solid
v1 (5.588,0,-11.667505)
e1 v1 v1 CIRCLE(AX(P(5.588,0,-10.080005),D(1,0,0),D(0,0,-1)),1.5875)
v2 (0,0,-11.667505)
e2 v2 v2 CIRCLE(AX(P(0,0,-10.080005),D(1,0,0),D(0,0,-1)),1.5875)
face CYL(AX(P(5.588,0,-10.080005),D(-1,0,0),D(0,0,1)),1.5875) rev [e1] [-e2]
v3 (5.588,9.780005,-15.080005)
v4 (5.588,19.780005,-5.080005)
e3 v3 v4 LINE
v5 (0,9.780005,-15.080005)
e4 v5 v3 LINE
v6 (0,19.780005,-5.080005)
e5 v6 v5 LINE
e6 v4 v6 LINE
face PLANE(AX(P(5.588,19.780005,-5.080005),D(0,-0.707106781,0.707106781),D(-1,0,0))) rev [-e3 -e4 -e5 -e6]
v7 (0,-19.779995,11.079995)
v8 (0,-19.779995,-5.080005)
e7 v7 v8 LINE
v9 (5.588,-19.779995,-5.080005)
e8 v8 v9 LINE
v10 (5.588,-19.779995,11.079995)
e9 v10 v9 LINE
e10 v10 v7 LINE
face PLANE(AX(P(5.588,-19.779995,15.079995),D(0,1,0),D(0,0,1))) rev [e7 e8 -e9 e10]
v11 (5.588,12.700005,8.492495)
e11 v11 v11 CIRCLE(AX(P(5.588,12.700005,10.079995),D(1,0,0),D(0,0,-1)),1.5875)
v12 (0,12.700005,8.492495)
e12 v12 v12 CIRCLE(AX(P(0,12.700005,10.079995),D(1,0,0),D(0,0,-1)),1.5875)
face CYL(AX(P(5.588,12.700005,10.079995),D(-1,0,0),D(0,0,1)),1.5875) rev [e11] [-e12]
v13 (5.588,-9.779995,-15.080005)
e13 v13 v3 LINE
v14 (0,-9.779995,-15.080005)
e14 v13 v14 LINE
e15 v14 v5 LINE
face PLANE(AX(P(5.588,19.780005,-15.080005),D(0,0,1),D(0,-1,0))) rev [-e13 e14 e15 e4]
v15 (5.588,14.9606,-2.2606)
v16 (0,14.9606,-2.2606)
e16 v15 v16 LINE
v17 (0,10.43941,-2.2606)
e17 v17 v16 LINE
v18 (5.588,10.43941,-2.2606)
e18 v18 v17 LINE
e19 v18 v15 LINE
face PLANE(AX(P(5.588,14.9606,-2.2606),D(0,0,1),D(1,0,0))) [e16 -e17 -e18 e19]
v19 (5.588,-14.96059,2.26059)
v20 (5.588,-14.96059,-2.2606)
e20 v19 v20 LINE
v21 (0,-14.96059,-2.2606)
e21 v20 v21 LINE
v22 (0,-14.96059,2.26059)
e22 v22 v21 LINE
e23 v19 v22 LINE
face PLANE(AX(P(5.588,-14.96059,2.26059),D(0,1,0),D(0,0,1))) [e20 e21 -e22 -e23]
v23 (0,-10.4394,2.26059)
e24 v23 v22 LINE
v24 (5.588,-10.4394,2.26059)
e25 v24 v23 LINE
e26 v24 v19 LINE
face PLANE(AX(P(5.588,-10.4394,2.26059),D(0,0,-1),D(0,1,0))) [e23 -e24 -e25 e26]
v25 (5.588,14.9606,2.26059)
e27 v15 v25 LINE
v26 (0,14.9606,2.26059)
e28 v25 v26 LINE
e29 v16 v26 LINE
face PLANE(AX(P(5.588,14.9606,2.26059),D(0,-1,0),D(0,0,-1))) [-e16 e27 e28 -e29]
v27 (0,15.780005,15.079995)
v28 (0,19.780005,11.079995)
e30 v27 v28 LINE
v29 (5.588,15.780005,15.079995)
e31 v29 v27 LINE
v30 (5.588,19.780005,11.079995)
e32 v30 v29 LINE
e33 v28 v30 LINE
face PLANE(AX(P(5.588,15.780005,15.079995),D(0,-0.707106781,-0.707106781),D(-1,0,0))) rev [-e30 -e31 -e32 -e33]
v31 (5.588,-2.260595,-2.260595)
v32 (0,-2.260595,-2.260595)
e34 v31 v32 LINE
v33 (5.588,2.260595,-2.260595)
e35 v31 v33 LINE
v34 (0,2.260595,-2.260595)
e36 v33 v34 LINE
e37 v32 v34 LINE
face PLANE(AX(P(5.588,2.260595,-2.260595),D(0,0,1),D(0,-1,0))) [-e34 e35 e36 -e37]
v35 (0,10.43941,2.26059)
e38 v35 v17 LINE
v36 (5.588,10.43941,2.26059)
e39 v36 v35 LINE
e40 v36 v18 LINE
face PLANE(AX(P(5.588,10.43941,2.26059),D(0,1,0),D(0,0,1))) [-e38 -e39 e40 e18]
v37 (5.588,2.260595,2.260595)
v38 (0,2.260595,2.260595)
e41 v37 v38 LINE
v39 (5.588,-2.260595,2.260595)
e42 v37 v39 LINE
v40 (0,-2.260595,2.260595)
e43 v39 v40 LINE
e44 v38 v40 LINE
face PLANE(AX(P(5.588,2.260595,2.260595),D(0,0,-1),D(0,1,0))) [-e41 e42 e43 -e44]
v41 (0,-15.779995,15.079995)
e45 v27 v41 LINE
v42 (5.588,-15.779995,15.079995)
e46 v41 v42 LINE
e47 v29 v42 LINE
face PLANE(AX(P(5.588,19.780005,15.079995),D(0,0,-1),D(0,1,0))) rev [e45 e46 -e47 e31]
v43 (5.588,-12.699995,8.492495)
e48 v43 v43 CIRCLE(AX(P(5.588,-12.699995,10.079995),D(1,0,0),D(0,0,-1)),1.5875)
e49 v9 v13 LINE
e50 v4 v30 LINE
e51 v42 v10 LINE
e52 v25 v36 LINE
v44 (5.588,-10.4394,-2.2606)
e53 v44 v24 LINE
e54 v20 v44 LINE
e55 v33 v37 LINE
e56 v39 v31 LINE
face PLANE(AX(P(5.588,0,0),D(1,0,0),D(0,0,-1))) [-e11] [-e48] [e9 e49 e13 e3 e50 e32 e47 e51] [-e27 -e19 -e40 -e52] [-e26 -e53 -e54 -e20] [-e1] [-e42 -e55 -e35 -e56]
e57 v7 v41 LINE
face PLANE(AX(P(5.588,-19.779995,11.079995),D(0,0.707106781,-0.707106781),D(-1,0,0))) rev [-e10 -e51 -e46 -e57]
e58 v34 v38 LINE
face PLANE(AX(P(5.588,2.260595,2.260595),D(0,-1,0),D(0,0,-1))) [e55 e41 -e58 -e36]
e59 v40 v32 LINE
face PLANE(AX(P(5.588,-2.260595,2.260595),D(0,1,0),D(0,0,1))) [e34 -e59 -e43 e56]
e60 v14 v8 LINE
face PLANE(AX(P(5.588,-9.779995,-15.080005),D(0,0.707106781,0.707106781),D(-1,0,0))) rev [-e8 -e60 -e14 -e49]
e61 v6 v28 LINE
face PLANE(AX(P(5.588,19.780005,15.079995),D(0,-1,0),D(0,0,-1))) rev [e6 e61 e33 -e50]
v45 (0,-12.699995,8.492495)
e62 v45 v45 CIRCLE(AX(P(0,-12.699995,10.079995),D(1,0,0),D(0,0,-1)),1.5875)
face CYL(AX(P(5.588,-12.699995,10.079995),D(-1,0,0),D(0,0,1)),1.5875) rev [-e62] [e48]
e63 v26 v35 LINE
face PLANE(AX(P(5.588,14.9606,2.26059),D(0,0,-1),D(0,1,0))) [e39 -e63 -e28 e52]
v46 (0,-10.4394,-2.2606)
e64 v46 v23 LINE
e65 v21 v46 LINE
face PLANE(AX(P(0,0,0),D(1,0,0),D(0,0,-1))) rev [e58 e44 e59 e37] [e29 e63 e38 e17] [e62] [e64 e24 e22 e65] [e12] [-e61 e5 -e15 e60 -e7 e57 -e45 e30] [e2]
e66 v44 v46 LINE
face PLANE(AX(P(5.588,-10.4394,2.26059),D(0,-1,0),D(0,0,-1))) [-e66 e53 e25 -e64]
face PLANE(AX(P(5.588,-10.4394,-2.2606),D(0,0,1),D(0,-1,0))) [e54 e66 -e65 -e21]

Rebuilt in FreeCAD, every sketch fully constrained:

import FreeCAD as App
import Part
import Sketcher
Q = App.Units.Quantity


def edges_at(feature, points):
    """Names of the edges that pass closest to the given points."""
    edges = feature.Shape.Edges
    near = lambda p: min(range(len(edges)), key=lambda i: edges[i].distToShape(Part.Vertex(*p))[0])
    return sorted({f"Edge{near(p) + 1}" for p in points})


def add_polygon(sketch, points):
    """Adds a closed chain of lines whose ends are joined by coincident constraints."""
    first, n = sketch.GeometryCount, len(points)
    for a, b in zip(points, points[1:] + points[:1]):
        sketch.addGeometry(Part.LineSegment(App.Vector(*a, 0), App.Vector(*b, 0)), False)
    for i in range(n):
        sketch.addConstraint(Sketcher.Constraint("Coincident", first + i, 2, first + (i + 1) % n, 1))

doc = App.newDocument("Part")
body = doc.addObject("PartDesign::Body", "Body")

# Sketch on YZ plane
sketch1 = body.newObject("Sketcher::SketchObject", "Sketch")
sketch1.AttachmentSupport = (doc.getObject("YZ_Plane"), [""])
sketch1.MapMode = "FlatFace"
add_polygon(sketch1, [(19.8, 15.1), (-19.8, 15.1), (-19.8, -15.1), (19.8, -15.1)])  # lines 0-3
sketch1.addGeometry(Part.Circle(App.Vector(-12.7, 10.1, 0), App.Vector(0, 0, 1), 1.6), False)  # 4
add_polygon(sketch1, [(-2.3, -2.3), (-2.3, 2.3), (2.3, 2.3), (2.3, -2.3)])  # lines 5-8
add_polygon(sketch1, [(-15, -2.3), (-15, 2.3), (-10.4, 2.3), (-10.4, -2.3)])  # lines 9-12
sketch1.addGeometry(Part.Circle(App.Vector(0, -10.1, 0), App.Vector(0, 0, 1), 1.6), False)  # 13
sketch1.addGeometry(Part.Circle(App.Vector(12.7, 10.1, 0), App.Vector(0, 0, 1), 1.6), False)  # 14
add_polygon(sketch1, [(10.4, -2.3), (10.4, 2.3), (15, 2.3), (15, -2.3)])  # lines 15-18
sketch1.addConstraint([
    Sketcher.Constraint("Horizontal", 0),
    Sketcher.Constraint("Vertical", 1),
    Sketcher.Constraint("Horizontal", 2),
    Sketcher.Constraint("Vertical", 3),
    Sketcher.Constraint("Vertical", 5),
    Sketcher.Constraint("Horizontal", 6),
    Sketcher.Constraint("Vertical", 7),
    Sketcher.Constraint("Horizontal", 8),
    Sketcher.Constraint("Vertical", 9),
    Sketcher.Constraint("Horizontal", 10),
    Sketcher.Constraint("Vertical", 11),
    Sketcher.Constraint("Horizontal", 12),
    Sketcher.Constraint("Vertical", 15),
    Sketcher.Constraint("Horizontal", 16),
    Sketcher.Constraint("Vertical", 17),
    Sketcher.Constraint("Horizontal", 18),
    Sketcher.Constraint("Equal", 4, 13),
    Sketcher.Constraint("Equal", 13, 14),
    Sketcher.Constraint("Symmetric", 0, 2, 2, 2, -1, 1),
    Sketcher.Constraint("Symmetric", 5, 2, 7, 2, -1, 1),
    Sketcher.Constraint("Symmetric", 4, 3, 14, 3, -2),
    Sketcher.Constraint("Symmetric", 10, 2, 15, 2, -2),
    Sketcher.Constraint("Symmetric", 12, 2, 17, 2, -2),
    Sketcher.Constraint("PointOnObject", 13, 3, -2),
    Sketcher.Constraint("Equal", 8, 10),
    Sketcher.Constraint("Equal", 18, 5),
    Sketcher.Constraint("Equal", 7, 9),
    Sketcher.Constraint("Diameter", 4, Q("3.175 mm")),
    Sketcher.Constraint("DistanceX", 0, 2, 0, 1, Q("39.56 mm")),
    Sketcher.Constraint("DistanceY", 1, 2, 1, 1, Q("30.16 mm")),
    Sketcher.Constraint("DistanceX", 4, 3, 14, 3, Q("25.4 mm")),
    Sketcher.Constraint("DistanceY", 13, 3, 4, 3, Q("20.16 mm")),
    Sketcher.Constraint("DistanceX", 6, 1, 6, 2, Q("4.52119 mm")),
    Sketcher.Constraint("DistanceX", 10, 2, -1, 1, Q("10.4394 mm")),
    Sketcher.Constraint("DistanceY", 11, 2, -1, 1, Q("2.2606 mm")),
    Sketcher.Constraint("DistanceY", 13, 3, 5, 2, Q("12.3406 mm")),
])
pad1 = body.newObject("PartDesign::Pad", "Pad")
pad1.Profile = sketch1
pad1.Length = 5.588
doc.recompute()

chamfer = body.newObject("PartDesign::Chamfer", "Chamfer")
chamfer.Base = (pad1, edges_at(pad1, [(2.794, 19.78, -15.08), (2.794, -19.78, -15.08)]))
chamfer.Size = 10
doc.recompute()

chamfer2 = body.newObject("PartDesign::Chamfer", "Chamfer001")
chamfer2.Base = (chamfer, edges_at(chamfer, [(2.794, 19.78, 15.08), (2.794, -19.78, 15.08)]))
chamfer2.Size = 4

doc.recompute()
